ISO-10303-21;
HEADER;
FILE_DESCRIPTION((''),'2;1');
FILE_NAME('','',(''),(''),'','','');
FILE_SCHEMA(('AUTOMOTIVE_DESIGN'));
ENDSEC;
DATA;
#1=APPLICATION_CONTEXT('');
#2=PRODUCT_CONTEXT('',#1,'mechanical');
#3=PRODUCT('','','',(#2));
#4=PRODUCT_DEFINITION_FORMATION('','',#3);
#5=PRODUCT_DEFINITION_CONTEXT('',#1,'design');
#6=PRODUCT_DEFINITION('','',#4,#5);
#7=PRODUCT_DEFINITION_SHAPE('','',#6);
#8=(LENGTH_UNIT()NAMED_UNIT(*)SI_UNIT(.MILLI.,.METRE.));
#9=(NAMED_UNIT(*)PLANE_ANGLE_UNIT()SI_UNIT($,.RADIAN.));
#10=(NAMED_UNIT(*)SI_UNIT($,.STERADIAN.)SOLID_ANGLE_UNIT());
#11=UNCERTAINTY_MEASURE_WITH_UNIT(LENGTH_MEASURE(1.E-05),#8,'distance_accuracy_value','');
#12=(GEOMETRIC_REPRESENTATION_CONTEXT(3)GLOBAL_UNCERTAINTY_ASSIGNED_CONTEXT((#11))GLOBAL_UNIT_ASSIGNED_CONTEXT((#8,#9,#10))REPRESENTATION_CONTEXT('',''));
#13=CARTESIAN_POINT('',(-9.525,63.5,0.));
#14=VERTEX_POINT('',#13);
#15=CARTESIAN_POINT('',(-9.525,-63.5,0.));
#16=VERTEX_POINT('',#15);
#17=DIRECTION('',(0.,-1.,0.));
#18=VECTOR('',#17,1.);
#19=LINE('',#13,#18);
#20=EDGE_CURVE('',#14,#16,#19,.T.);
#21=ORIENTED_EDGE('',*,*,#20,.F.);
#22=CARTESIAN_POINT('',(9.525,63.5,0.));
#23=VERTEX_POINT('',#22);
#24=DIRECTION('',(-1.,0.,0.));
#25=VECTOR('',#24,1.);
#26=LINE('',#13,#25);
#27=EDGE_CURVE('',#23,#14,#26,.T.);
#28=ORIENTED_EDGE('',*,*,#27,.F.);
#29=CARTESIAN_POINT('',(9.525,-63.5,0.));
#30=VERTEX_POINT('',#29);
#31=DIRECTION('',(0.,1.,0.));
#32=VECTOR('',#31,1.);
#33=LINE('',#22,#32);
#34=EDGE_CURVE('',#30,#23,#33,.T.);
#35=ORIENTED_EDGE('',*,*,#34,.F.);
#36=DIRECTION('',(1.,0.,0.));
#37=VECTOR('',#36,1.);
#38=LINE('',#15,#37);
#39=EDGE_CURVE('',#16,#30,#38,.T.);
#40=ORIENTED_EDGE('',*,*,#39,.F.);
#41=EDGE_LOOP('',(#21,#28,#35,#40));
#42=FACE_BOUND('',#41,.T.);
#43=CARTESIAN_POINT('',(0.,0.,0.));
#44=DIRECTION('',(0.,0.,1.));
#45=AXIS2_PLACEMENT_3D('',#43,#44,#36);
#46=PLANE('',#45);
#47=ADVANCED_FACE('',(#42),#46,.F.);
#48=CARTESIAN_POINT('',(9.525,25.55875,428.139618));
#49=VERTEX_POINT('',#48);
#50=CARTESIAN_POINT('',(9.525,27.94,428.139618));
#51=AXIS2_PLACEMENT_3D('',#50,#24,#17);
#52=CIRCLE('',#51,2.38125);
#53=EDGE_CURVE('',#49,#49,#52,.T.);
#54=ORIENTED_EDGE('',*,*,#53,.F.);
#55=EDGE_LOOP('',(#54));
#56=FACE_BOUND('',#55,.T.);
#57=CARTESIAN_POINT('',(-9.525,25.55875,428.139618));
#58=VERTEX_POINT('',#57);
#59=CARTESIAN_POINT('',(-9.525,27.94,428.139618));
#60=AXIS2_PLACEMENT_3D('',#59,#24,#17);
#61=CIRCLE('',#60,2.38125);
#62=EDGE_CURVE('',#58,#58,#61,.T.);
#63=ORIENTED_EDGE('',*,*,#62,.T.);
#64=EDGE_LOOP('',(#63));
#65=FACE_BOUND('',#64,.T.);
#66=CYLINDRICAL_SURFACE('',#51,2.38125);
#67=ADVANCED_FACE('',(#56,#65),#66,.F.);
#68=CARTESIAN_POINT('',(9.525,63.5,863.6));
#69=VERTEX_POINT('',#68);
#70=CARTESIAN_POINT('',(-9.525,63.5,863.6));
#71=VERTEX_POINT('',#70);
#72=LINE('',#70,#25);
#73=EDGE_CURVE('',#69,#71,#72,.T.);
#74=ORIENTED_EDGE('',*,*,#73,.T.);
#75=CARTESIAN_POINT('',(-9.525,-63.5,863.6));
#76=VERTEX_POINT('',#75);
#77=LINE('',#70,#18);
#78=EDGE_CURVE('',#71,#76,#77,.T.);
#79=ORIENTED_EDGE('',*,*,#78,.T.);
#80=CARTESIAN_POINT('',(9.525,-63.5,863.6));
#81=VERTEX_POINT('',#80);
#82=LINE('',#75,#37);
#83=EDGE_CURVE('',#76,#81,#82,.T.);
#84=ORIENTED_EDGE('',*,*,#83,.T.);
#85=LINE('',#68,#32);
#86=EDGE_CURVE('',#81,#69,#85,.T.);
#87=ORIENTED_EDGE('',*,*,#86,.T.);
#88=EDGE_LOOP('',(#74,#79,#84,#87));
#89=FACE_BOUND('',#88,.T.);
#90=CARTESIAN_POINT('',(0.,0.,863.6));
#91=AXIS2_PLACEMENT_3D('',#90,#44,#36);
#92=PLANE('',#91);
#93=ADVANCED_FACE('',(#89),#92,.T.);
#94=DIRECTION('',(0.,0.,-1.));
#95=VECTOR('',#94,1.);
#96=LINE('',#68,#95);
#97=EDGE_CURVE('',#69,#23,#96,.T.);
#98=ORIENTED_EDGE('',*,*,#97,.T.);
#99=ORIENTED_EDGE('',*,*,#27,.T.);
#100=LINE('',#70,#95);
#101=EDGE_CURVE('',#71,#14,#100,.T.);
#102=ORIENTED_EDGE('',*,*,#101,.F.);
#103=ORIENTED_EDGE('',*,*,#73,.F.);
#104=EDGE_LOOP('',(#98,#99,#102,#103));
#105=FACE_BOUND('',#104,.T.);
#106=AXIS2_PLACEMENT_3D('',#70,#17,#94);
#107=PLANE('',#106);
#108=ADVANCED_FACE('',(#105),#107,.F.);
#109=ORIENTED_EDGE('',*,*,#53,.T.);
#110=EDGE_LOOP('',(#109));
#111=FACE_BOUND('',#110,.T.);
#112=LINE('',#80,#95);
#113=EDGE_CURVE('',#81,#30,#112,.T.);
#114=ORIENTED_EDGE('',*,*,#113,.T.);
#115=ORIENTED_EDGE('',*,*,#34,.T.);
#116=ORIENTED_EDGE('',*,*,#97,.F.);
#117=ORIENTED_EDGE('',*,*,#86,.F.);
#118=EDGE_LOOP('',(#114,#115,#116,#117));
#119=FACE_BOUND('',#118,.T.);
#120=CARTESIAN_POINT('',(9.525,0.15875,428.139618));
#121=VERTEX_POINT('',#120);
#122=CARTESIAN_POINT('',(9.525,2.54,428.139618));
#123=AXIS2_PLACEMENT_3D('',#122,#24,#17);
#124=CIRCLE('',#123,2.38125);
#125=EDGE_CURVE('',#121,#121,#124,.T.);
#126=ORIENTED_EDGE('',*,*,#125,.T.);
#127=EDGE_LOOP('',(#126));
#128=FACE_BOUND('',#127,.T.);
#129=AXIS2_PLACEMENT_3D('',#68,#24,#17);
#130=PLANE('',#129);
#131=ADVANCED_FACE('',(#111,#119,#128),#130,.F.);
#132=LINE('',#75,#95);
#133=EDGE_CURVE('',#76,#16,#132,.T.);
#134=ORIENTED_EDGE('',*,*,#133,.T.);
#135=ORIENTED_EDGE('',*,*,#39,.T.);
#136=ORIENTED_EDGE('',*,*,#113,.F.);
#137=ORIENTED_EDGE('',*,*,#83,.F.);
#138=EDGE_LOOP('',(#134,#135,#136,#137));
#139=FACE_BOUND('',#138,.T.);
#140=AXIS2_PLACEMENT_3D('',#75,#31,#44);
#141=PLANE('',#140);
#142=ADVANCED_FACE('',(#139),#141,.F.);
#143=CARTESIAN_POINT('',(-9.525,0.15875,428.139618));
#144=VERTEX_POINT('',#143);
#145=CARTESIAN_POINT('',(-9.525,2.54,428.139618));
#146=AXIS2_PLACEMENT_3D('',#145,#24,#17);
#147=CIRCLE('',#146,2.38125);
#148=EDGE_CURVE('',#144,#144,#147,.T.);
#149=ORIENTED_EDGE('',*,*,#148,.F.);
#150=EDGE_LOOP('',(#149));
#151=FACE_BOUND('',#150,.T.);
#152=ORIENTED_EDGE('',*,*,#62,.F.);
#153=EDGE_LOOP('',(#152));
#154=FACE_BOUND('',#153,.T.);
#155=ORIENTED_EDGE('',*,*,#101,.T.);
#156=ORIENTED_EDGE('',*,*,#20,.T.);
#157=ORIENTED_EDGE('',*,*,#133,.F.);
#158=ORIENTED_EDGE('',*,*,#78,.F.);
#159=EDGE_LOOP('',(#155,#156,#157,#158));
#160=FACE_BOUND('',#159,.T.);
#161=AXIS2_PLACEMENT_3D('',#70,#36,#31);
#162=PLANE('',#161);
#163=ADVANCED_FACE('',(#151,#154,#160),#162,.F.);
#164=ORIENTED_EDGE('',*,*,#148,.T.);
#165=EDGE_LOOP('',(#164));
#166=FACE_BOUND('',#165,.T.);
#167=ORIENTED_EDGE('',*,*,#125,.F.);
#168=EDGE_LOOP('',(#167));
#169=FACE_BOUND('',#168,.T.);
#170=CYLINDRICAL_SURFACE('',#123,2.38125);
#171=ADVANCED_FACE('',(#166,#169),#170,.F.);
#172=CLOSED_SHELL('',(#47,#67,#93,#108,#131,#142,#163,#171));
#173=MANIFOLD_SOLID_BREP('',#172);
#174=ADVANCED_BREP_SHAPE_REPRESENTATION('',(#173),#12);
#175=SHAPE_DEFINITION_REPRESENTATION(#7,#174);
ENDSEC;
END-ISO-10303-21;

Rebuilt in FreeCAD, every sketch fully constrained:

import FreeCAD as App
import Part
import Sketcher
from FreeCAD import Vector
Q = App.Units.Quantity

doc = App.newDocument("Part")
body = doc.addObject("PartDesign::Body", "Body")

sketch1 = body.newObject("Sketcher::SketchObject", "Sketch")
sketch1.AttachmentSupport = (doc.getObject("XY_Plane"), [""])
sketch1.MapMode = "FlatFace"
sketch1.addGeometry([
    Part.LineSegment(Vector(-9.525, 63.5, 0), Vector(-9.525, -63.5, 0)),
    Part.LineSegment(Vector(-9.525, -63.5, 0), Vector(9.525, -63.5, 0)),
    Part.LineSegment(Vector(9.525, -63.5, 0), Vector(9.525, 63.5, 0)),
    Part.LineSegment(Vector(9.525, 63.5, 0), Vector(-9.525, 63.5, 0)),
], False)
sketch1.addConstraint([
    Sketcher.Constraint("Coincident", 0, 2, 1, 1),
    Sketcher.Constraint("Coincident", 1, 2, 2, 1),
    Sketcher.Constraint("Coincident", 2, 2, 3, 1),
    Sketcher.Constraint("Coincident", 3, 2, 0, 1),
    Sketcher.Constraint("Vertical", 0),
    Sketcher.Constraint("Horizontal", 1),
    Sketcher.Constraint("Vertical", 2),
    Sketcher.Constraint("Horizontal", 3),
    Sketcher.Constraint("Symmetric", 0, 2, 2, 2, -1, 1),
    Sketcher.Constraint("DistanceY", 0, 2, 0, 1, Q("5 in")),
    Sketcher.Constraint("DistanceX", 1, 1, 1, 2, Q("0.75 in")),
])
pad1 = body.newObject("PartDesign::Pad", "Pad")
pad1.Profile = sketch1
pad1.Length = Q("34 in")

sketch2 = body.newObject("Sketcher::SketchObject", "Sketch001")
sketch2.AttachmentSupport = (doc.getObject("YZ_Plane"), [""])
sketch2.MapMode = "FlatFace"
sketch2.AttachmentOffset = App.Placement(Vector(0, 0, -0.375 * 25.4), App.Rotation())
sketch2.addGeometry([
    Part.Circle(Vector(2.54, 428.139618, 0), Vector(0, 0, 1), 2.38125),
    Part.Circle(Vector(27.94, 428.139618, 0), Vector(0, 0, 1), 2.38125),
], False)
sketch2.addConstraint([
    Sketcher.Constraint("Equal", 0, 1),
    Sketcher.Constraint("Horizontal", 0, 3, 1, 3),
    Sketcher.Constraint("Diameter", 0, Q("0.1875 in")),
    Sketcher.Constraint("DistanceX", 0, 3, 1, 3, Q("1 in")),
    Sketcher.Constraint("DistanceX", -1, 1, 0, 3, Q("0.1 in")),
    Sketcher.Constraint("DistanceY", -1, 1, 0, 3, 428.139618),
])
pocket1 = body.newObject("PartDesign::Pocket", "Pocket")
pocket1.Profile = sketch2
pocket1.Type = "ThroughAll"
pocket1.Reversed = True

doc.recompute()
